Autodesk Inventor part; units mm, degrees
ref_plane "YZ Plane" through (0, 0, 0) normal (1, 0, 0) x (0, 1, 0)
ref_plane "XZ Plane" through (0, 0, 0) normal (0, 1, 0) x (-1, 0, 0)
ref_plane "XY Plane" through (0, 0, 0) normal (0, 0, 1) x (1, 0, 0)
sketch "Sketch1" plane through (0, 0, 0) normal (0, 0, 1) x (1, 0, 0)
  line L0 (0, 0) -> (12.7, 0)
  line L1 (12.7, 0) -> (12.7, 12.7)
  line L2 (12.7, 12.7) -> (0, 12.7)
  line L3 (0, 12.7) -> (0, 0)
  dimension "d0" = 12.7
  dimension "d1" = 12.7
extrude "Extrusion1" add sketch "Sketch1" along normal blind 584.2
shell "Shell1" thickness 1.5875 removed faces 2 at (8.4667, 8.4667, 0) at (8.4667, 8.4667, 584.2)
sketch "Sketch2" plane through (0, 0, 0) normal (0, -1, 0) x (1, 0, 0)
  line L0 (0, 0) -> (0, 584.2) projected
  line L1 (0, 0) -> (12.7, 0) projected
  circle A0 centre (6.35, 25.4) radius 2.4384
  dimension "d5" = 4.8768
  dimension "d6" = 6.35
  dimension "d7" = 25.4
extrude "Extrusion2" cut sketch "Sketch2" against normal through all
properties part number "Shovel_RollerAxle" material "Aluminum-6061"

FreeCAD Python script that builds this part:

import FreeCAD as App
import Part
import Sketcher
from FreeCAD import Vector
Q = App.Units.Quantity


def faces_at(feature, points):
    """Names of the faces that lie closest to the given points."""
    faces = feature.Shape.Faces
    near = lambda p: min(range(len(faces)), key=lambda i: faces[i].distToShape(Part.Vertex(*p))[0])
    return sorted({f"Face{near(p) + 1}" for p in points})

doc = App.newDocument("Part")
params = doc.addObject("Spreadsheet::Sheet", "Params")
for row, (alias, value) in enumerate([
    ("sketch1_width", "0.5 in"),
    ("pad1_length", "23 in"),
    ("thickness_wall", "0.0625 in"),
    ("sketch2_diameter", "0.192 in"),
], start=1):
    params.set(f"A{row}", alias)
    params.set(f"B{row}", "=" + value)
    params.setAlias(f"B{row}", alias)

body = doc.addObject("PartDesign::Body", "Body")

# Sketch on XY plane
sketch1 = body.newObject("Sketcher::SketchObject", "Sketch")
sketch1.AttachmentSupport = (doc.getObject("XY_Plane"), [""])
sketch1.MapMode = "FlatFace"
sketch1.addGeometry([
    Part.LineSegment(Vector(0, 13, 0), Vector(0, 0, 0)),
    Part.LineSegment(Vector(0, 0, 0), Vector(13, 0, 0)),
    Part.LineSegment(Vector(13, 0, 0), Vector(13, 13, 0)),
    Part.LineSegment(Vector(13, 13, 0), Vector(0, 13, 0)),
], False)
sketch1.addConstraint([
    Sketcher.Constraint("Coincident", 0, 2, 1, 1),
    Sketcher.Constraint("Coincident", 1, 2, 2, 1),
    Sketcher.Constraint("Coincident", 2, 2, 3, 1),
    Sketcher.Constraint("Coincident", 3, 2, 0, 1),
    Sketcher.Constraint("Vertical", 0),
    Sketcher.Constraint("Horizontal", 1),
    Sketcher.Constraint("Vertical", 2),
    Sketcher.Constraint("Horizontal", 3),
    Sketcher.Constraint("Coincident", 0, 2, -1, 1),
    Sketcher.Constraint("Equal", 3, 0),
    Sketcher.Constraint("DistanceX", 1, 1, 1, 2, Q("0.5 in")),
])
sketch1.setExpression("Constraints[10]", "Params.sketch1_width")
pad1 = body.newObject("PartDesign::Pad", "Pad")
pad1.Profile = sketch1
pad1.setExpression("Length", "Params.pad1_length")
doc.recompute()

thickness = body.newObject("PartDesign::Thickness", "Thickness")
thickness.Base = (pad1, faces_at(pad1, [(8.467, 8.467, 0), (8.467, 8.467, 584.2)]))
thickness.setExpression("Value", "Params.thickness_wall")
thickness.Reversed = True
thickness.Join = "Intersection"

# Sketch on XZ plane
sketch2 = body.newObject("Sketcher::SketchObject", "Sketch001")
sketch2.AttachmentSupport = (doc.getObject("XZ_Plane"), [""])
sketch2.MapMode = "FlatFace"
sketch2.addGeometry(Part.Circle(Vector(6.3, 25.4, 0), Vector(0, 0, 1), 2.4), False)
sketch2.addConstraint([
    Sketcher.Constraint("Diameter", 0, Q("0.192 in")),
    Sketcher.Constraint("DistanceY", -1, 1, 0, 3, Q("1 in")),
    Sketcher.Constraint("DistanceX", -1, 1, 0, 3, Q("0.25 in")),
])
sketch2.setExpression("Constraints[0]", "Params.sketch2_diameter")
pocket1 = body.newObject("PartDesign::Pocket", "Pocket")
pocket1.Profile = sketch2
pocket1.Type = "ThroughAll"

doc.recompute()
